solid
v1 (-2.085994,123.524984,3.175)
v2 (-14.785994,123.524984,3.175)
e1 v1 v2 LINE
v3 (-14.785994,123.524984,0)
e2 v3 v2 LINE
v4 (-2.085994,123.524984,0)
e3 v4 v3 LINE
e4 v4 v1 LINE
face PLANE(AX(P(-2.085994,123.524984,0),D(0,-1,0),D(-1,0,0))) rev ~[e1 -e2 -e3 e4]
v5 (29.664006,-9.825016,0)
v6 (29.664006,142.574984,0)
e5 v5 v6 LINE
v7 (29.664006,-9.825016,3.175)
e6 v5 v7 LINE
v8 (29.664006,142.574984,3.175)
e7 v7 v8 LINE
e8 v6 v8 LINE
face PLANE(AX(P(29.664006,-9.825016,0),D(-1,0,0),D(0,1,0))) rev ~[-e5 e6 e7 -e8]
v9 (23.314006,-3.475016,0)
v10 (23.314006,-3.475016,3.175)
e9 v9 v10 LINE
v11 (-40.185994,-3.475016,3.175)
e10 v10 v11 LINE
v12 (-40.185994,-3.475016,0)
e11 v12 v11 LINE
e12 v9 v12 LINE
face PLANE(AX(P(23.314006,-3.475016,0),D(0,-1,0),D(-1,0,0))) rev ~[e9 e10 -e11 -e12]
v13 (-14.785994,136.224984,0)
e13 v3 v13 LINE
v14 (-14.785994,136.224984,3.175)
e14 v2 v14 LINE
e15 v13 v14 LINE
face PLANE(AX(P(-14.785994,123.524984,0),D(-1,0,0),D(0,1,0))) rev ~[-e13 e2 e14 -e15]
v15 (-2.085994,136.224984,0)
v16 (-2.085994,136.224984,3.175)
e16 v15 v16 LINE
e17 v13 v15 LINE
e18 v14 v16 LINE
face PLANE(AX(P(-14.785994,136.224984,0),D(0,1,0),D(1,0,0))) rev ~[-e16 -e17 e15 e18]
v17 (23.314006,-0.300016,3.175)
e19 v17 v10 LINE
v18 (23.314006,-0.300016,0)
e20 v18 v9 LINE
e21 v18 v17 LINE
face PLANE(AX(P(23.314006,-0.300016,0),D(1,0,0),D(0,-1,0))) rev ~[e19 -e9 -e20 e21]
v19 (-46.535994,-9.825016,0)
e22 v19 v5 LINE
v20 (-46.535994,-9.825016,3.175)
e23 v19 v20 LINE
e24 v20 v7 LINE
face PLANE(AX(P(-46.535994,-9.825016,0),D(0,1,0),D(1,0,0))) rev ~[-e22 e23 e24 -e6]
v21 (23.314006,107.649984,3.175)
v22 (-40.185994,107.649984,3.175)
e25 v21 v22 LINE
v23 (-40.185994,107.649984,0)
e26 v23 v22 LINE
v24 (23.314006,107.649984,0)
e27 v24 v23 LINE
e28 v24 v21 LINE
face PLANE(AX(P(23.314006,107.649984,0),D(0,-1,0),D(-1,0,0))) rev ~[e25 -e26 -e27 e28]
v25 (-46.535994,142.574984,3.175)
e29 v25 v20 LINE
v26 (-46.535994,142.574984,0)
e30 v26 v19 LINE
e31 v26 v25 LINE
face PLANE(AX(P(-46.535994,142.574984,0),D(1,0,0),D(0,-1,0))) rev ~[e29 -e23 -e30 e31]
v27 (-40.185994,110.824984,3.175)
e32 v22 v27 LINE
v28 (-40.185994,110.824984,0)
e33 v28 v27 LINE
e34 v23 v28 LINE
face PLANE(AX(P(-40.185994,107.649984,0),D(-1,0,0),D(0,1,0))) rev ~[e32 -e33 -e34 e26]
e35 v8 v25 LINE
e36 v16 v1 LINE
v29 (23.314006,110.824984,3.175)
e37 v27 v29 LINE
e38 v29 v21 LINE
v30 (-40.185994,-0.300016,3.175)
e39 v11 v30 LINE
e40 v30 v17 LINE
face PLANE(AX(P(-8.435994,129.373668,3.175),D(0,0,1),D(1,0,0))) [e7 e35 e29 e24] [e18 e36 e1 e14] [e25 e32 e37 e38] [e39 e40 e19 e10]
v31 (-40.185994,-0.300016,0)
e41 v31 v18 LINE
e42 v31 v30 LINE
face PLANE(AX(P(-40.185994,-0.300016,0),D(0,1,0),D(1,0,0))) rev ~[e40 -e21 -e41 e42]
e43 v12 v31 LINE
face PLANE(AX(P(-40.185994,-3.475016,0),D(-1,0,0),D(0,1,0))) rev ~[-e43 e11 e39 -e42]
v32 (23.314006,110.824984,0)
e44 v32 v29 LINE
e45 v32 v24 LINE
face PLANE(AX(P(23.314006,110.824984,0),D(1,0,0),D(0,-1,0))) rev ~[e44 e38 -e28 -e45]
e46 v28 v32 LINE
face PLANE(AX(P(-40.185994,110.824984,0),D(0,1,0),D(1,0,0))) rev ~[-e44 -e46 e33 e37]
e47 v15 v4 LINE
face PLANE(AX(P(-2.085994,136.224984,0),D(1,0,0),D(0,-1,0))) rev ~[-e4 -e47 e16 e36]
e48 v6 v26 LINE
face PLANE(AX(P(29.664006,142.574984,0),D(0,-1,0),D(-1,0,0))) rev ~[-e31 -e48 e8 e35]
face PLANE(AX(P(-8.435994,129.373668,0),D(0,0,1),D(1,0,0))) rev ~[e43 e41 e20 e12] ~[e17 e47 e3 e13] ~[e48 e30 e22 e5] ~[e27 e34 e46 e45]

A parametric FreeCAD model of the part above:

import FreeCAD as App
import Part
import Sketcher
Q = App.Units.Quantity

doc = App.newDocument("Part")
body = doc.addObject("PartDesign::Body", "Body")

# Sketch on XY plane
sketch1 = body.newObject("Sketcher::SketchObject", "Sketch")
sketch1.AttachmentSupport = (doc.getObject("XY_Plane"), [""])
sketch1.MapMode = "FlatFace"
sketch1.addGeometry([
    Part.LineSegment(App.Vector(-46.535994, -9.825016, 0), App.Vector(29.664006, -9.825016, 0)),  # 0
    Part.LineSegment(App.Vector(29.664006, -9.825016, 0), App.Vector(29.664006, 142.574984, 0)),  # 1
    Part.LineSegment(App.Vector(29.664006, 142.574984, 0), App.Vector(-46.535994, 142.574984, 0)),  # 2
    Part.LineSegment(App.Vector(-46.535994, 142.574984, 0), App.Vector(-46.535994, -9.825016, 0)),  # 3
    Part.LineSegment(App.Vector(23.314006, -0.300016, 0), App.Vector(23.314006, -3.475016, 0)),  # 4
    Part.LineSegment(App.Vector(23.314006, -3.475016, 0), App.Vector(-40.185994, -3.475016, 0)),  # 5
    Part.LineSegment(App.Vector(-40.185994, -3.475016, 0), App.Vector(-40.185994, -0.300016, 0)),  # 6
    Part.LineSegment(App.Vector(-40.185994, -0.300016, 0), App.Vector(23.314006, -0.300016, 0)),  # 7
    Part.LineSegment(App.Vector(23.314006, 107.649984, 0), App.Vector(-40.185994, 107.649984, 0)),  # 8
    Part.LineSegment(App.Vector(-40.185994, 107.649984, 0), App.Vector(-40.185994, 110.824984, 0)),  # 9
    Part.LineSegment(App.Vector(-40.185994, 110.824984, 0), App.Vector(23.314006, 110.824984, 0)),  # 10
    Part.LineSegment(App.Vector(23.314006, 110.824984, 0), App.Vector(23.314006, 107.649984, 0)),  # 11
    Part.LineSegment(App.Vector(-2.085994, 136.224984, 0), App.Vector(-2.085994, 123.524984, 0)),  # 12
    Part.LineSegment(App.Vector(-2.085994, 123.524984, 0), App.Vector(-14.785994, 123.524984, 0)),  # 13
    Part.LineSegment(App.Vector(-14.785994, 123.524984, 0), App.Vector(-14.785994, 136.224984, 0)),  # 14
    Part.LineSegment(App.Vector(-14.785994, 136.224984, 0), App.Vector(-2.085994, 136.224984, 0)),  # 15
], False)
sketch1.addConstraint([
    Sketcher.Constraint("Coincident", 0, 2, 1, 1),
    Sketcher.Constraint("Coincident", 1, 2, 2, 1),
    Sketcher.Constraint("Coincident", 2, 2, 3, 1),
    Sketcher.Constraint("Coincident", 3, 2, 0, 1),
    Sketcher.Constraint("Coincident", 4, 2, 5, 1),
    Sketcher.Constraint("Coincident", 5, 2, 6, 1),
    Sketcher.Constraint("Coincident", 6, 2, 7, 1),
    Sketcher.Constraint("Coincident", 7, 2, 4, 1),
    Sketcher.Constraint("Coincident", 8, 2, 9, 1),
    Sketcher.Constraint("Coincident", 9, 2, 10, 1),
    Sketcher.Constraint("Coincident", 10, 2, 11, 1),
    Sketcher.Constraint("Coincident", 11, 2, 8, 1),
    Sketcher.Constraint("Coincident", 12, 2, 13, 1),
    Sketcher.Constraint("Coincident", 13, 2, 14, 1),
    Sketcher.Constraint("Coincident", 14, 2, 15, 1),
    Sketcher.Constraint("Coincident", 15, 2, 12, 1),
    Sketcher.Constraint("Horizontal", 0),
    Sketcher.Constraint("Vertical", 1),
    Sketcher.Constraint("Horizontal", 2),
    Sketcher.Constraint("Vertical", 3),
    Sketcher.Constraint("Vertical", 4),
    Sketcher.Constraint("Horizontal", 5),
    Sketcher.Constraint("Vertical", 6),
    Sketcher.Constraint("Horizontal", 7),
    Sketcher.Constraint("Horizontal", 8),
    Sketcher.Constraint("Vertical", 9),
    Sketcher.Constraint("Horizontal", 10),
    Sketcher.Constraint("Vertical", 11),
    Sketcher.Constraint("Vertical", 12),
    Sketcher.Constraint("Horizontal", 13),
    Sketcher.Constraint("Vertical", 14),
    Sketcher.Constraint("Horizontal", 15),
    Sketcher.Constraint("Vertical", 6, 2, 8, 2),
    Sketcher.Constraint("Vertical", 7, 2, 10, 2),
    Sketcher.Constraint("Equal", 6, 9),
    Sketcher.Constraint("Equal", 15, 12),
    Sketcher.Constraint("DistanceX", 0, 1, 0, 2, Q("3 in")),
    Sketcher.Constraint("DistanceY", 1, 1, 1, 2, Q("6 in")),
    Sketcher.Constraint("DistanceX", 5, 2, 5, 1, Q("2.5 in")),
    Sketcher.Constraint("DistanceX", 13, 2, 13, 1, Q("0.5 in")),
    Sketcher.Constraint("DistanceX", 12, 2, 10, 2, Q("1 in")),
    Sketcher.Constraint("DistanceY", 9, 2, 14, 2, Q("1 in")),
    Sketcher.Constraint("DistanceY", 5, 2, 9, 2, Q("4.5 in")),
    Sketcher.Constraint("DistanceY", 4, 2, 4, 1, Q("0.125 in")),
    Sketcher.Constraint("DistanceX", 4, 2, 0, 2, Q("0.25 in")),
    Sketcher.Constraint("DistanceY", 0, 2, 4, 2, Q("0.25 in")),
    Sketcher.Constraint("DistanceX", -1, 1, 0, 2, Q("29.664006 mm")),
    Sketcher.Constraint("DistanceY", 0, 2, -1, 1, Q("9.825016 mm")),
])
pad1 = body.newObject("PartDesign::Pad", "Pad")
pad1.Profile = sketch1
pad1.Length = Q("0.125 in")

doc.recompute()
